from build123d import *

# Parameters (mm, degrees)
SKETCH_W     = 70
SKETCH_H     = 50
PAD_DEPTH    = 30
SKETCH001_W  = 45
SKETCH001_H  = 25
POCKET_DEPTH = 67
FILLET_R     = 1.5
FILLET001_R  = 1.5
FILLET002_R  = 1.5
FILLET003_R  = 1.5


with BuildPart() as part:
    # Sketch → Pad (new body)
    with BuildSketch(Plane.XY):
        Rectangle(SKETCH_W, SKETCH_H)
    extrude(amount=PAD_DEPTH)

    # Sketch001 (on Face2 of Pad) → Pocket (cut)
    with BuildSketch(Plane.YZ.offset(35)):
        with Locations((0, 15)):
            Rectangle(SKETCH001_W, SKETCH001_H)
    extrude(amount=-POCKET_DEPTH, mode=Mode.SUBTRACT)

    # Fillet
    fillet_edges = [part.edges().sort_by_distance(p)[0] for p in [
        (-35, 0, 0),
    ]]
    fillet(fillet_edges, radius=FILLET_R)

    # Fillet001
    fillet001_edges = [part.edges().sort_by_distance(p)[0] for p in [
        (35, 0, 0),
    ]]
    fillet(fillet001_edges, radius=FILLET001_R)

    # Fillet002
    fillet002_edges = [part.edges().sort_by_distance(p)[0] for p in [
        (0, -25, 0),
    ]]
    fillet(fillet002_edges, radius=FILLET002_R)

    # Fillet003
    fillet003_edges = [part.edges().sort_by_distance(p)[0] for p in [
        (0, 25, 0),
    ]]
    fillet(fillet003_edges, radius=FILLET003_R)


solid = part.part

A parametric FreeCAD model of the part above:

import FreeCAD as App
import Part
import Sketcher
from FreeCAD import Vector


def edges_at(feature, points):
    """Names of the edges that pass closest to the given points."""
    edges = feature.Shape.Edges
    near = lambda p: min(range(len(edges)), key=lambda i: edges[i].distToShape(Part.Vertex(*p))[0])
    return sorted({f"Edge{near(p) + 1}" for p in points})


def add_polygon(sketch, points):
    """Adds a closed chain of lines whose ends are joined by coincident constraints."""
    first, n = sketch.GeometryCount, len(points)
    for a, b in zip(points, points[1:] + points[:1]):
        sketch.addGeometry(Part.LineSegment(App.Vector(*a, 0), App.Vector(*b, 0)), False)
    for i in range(n):
        sketch.addConstraint(Sketcher.Constraint("Coincident", first + i, 2, first + (i + 1) % n, 1))

doc = App.newDocument("Part")
body = doc.addObject("PartDesign::Body", "Body")

# Sketch on XY plane
sketch1 = body.newObject("Sketcher::SketchObject", "Sketch")
sketch1.AttachmentSupport = (doc.getObject("XY_Plane"), [""])
sketch1.MapMode = "FlatFace"
add_polygon(sketch1, [(-35, 25), (-35, -25), (35, -25), (35, 25)])  # lines 0-3
sketch1.addConstraint([
    Sketcher.Constraint("Vertical", 0),
    Sketcher.Constraint("Horizontal", 1),
    Sketcher.Constraint("Vertical", 2),
    Sketcher.Constraint("Horizontal", 3),
    Sketcher.Constraint("Symmetric", 0, 2, 2, 2, -1, 1),
    Sketcher.Constraint("DistanceX", 1, 1, 1, 2, 70.0),
    Sketcher.Constraint("DistanceY", 0, 2, 0, 1, 50.0),
])
pad1 = body.newObject("PartDesign::Pad", "Pad")
pad1.Profile = sketch1
pad1.Length = 30

# Sketch on YZ plane
sketch2 = body.newObject("Sketcher::SketchObject", "Sketch001")
sketch2.AttachmentSupport = (doc.getObject("YZ_Plane"), [""])
sketch2.MapMode = "FlatFace"
sketch2.AttachmentOffset = App.Placement(Vector(0, 0, 35), App.Rotation())
add_polygon(sketch2, [(-22, 28), (-22, 2), (22, 2), (22, 28)])  # lines 0-3
sketch2.addConstraint([
    Sketcher.Constraint("Vertical", 0),
    Sketcher.Constraint("Horizontal", 1),
    Sketcher.Constraint("Vertical", 2),
    Sketcher.Constraint("Horizontal", 3),
    Sketcher.Constraint("DistanceX", 1, 1, 1, 2, 45.0),
    Sketcher.Constraint("DistanceY", 0, 2, 0, 1, 25.0),
    Sketcher.Constraint("DistanceX", 0, 2, -1, 1, 22.5),
    Sketcher.Constraint("DistanceY", -1, 1, 0, 2, 2.5),
])
pocket1 = body.newObject("PartDesign::Pocket", "Pocket")
pocket1.Profile = sketch2
pocket1.Length = 67
doc.recompute()

fillet = body.newObject("PartDesign::Fillet", "Fillet")
fillet.Base = (pocket1, edges_at(pocket1, [(-35, 0, 0)]))
fillet.Radius = 1.5
doc.recompute()

fillet2 = body.newObject("PartDesign::Fillet", "Fillet001")
fillet2.Base = (fillet, edges_at(fillet, [(35, 0, 0)]))
fillet2.Radius = 1.5
doc.recompute()

fillet3 = body.newObject("PartDesign::Fillet", "Fillet002")
fillet3.Base = (fillet2, edges_at(fillet2, [(0, -25, 0)]))
fillet3.Radius = 1.5
doc.recompute()

fillet4 = body.newObject("PartDesign::Fillet", "Fillet003")
fillet4.Base = (fillet3, edges_at(fillet3, [(0, 25, 0)]))
fillet4.Radius = 1.5

doc.recompute()
